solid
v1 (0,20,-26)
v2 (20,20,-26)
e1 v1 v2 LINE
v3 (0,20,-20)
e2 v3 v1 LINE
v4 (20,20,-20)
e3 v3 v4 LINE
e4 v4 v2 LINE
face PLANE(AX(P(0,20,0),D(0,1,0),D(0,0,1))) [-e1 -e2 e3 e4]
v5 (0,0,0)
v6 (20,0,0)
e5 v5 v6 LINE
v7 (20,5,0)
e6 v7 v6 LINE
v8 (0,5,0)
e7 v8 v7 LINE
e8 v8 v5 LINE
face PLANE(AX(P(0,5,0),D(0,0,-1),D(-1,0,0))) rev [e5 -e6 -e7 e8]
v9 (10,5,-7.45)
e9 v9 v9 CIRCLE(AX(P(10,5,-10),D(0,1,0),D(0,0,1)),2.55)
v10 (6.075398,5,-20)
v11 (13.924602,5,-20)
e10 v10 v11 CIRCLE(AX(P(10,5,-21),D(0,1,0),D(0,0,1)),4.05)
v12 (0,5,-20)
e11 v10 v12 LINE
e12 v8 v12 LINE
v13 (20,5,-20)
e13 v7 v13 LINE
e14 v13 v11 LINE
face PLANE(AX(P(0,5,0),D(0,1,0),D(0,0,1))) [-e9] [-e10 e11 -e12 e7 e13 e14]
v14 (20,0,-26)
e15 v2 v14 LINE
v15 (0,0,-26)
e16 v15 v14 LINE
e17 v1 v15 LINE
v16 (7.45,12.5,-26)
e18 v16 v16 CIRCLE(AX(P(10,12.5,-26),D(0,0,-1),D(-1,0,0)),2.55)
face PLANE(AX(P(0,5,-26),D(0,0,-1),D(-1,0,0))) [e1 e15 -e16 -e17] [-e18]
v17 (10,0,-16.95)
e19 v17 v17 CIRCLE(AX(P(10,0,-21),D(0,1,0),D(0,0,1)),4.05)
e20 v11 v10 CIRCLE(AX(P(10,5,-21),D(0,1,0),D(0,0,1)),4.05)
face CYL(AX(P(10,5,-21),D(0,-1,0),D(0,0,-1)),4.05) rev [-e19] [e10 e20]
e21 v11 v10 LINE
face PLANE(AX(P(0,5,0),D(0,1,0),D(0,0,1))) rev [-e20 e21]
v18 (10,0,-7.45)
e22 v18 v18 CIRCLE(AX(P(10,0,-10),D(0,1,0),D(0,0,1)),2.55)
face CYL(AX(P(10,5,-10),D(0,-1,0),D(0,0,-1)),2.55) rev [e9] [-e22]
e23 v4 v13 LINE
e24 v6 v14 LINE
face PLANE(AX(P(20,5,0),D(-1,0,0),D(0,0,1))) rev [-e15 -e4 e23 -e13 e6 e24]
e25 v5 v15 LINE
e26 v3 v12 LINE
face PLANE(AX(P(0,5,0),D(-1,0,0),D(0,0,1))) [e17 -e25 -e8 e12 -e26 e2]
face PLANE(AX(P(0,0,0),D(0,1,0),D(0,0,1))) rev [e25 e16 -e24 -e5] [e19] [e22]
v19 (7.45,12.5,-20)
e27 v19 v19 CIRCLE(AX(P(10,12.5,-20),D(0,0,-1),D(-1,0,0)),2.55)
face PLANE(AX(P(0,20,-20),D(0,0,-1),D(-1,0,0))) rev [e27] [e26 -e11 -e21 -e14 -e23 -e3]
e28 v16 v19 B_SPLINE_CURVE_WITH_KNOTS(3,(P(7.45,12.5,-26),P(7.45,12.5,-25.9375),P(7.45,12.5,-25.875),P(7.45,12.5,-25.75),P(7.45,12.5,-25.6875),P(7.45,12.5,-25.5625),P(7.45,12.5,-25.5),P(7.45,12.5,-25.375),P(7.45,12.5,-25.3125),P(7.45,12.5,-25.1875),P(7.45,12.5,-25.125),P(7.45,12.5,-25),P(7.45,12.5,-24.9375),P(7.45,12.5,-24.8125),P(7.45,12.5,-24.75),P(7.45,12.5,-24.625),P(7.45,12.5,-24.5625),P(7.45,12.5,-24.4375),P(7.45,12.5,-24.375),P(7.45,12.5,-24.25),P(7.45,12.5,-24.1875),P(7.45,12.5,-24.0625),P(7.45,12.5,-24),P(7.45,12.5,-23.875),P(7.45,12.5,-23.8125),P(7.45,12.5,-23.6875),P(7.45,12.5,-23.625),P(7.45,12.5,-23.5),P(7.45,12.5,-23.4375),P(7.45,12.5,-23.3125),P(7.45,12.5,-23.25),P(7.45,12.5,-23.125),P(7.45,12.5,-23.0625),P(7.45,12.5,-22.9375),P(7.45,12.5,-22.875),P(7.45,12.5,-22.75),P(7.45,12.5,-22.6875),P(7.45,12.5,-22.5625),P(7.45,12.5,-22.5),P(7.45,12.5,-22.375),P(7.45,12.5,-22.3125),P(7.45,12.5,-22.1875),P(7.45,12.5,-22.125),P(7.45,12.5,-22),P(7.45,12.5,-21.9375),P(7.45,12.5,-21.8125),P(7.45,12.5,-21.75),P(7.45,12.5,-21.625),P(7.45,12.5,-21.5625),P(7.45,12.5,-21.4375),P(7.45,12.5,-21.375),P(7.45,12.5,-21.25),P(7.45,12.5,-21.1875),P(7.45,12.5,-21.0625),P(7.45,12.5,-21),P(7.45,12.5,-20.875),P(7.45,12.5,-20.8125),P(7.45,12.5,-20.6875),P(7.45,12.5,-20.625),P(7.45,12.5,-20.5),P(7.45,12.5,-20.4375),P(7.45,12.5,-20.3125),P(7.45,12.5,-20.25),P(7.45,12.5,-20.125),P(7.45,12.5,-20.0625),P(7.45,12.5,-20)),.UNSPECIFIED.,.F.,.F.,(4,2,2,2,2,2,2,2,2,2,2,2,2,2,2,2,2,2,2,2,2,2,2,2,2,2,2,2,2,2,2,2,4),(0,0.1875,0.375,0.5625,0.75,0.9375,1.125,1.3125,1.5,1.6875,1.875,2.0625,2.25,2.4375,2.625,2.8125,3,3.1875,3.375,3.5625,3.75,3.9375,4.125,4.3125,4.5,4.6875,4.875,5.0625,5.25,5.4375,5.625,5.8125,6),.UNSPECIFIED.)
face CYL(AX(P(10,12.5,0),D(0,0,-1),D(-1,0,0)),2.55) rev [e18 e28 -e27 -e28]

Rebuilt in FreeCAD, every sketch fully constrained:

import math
import FreeCAD as App
import Part
import Sketcher
from FreeCAD import Vector


def add_polygon(sketch, points):
    """Adds a closed chain of lines whose ends are joined by coincident constraints."""
    first, n = sketch.GeometryCount, len(points)
    for a, b in zip(points, points[1:] + points[:1]):
        sketch.addGeometry(Part.LineSegment(App.Vector(*a, 0), App.Vector(*b, 0)), False)
    for i in range(n):
        sketch.addConstraint(Sketcher.Constraint("Coincident", first + i, 2, first + (i + 1) % n, 1))

doc = App.newDocument("Part")
body = doc.addObject("PartDesign::Body", "Body")

# Sketch on XZ plane
sketch1 = body.newObject("Sketcher::SketchObject", "Sketch")
sketch1.AttachmentSupport = (doc.getObject("XZ_Plane"), [""])
sketch1.MapMode = "FlatFace"
add_polygon(sketch1, [(0, 0), (20, 0), (20, -26), (0, -26)])  # lines 0-3
sketch1.addGeometry(Part.ArcOfCircle(Part.Circle(Vector(10, -21, 0), Vector(0, 0, 1), 4), math.radians(14), math.radians(166)), False)  # 4
sketch1.addGeometry(Part.ArcOfCircle(Part.Circle(Vector(10, -21, 0), Vector(0, 0, 1), 4), math.radians(166), math.radians(360)), False)  # 5
sketch1.addGeometry(Part.ArcOfCircle(Part.Circle(Vector(10, -21, 0), Vector(0, 0, 1), 4), math.radians(0), math.radians(14.29)), False)  # 6
sketch1.addGeometry(Part.Circle(Vector(10, -10, 0), Vector(0, 0, 1), 2.5), False)  # 7
sketch1.addConstraint(Sketcher.Constraint("Tangent", 4, 2, 5, 1))
sketch1.addConstraint(Sketcher.Constraint("Tangent", 5, 2, 6, 1))
sketch1.addConstraint(Sketcher.Constraint("Tangent", 6, 2, 4, 1))
sketch1.addConstraint(Sketcher.Constraint("Horizontal", 0))
sketch1.addConstraint(Sketcher.Constraint("Vertical", 1))
sketch1.addConstraint(Sketcher.Constraint("Horizontal", 2))
sketch1.addConstraint(Sketcher.Constraint("Vertical", 3))
sketch1.addConstraint(Sketcher.Constraint("Coincident", 3, 2, -1, 1))
sketch1.addConstraint(Sketcher.Constraint("Horizontal", 6, 3, 5, 2))
sketch1.addConstraint(Sketcher.Constraint("Horizontal", 4, 2, 6, 2))
sketch1.addConstraint(Sketcher.Constraint("Vertical", 6, 3, 7, 3))
sketch1.addConstraint(Sketcher.Constraint("Diameter", 7, 5.1))
sketch1.addConstraint(Sketcher.Constraint("DistanceX", 0, 1, 0, 2, 20.0))
sketch1.addConstraint(Sketcher.Constraint("DistanceY", 1, 2, 1, 1, 26.0))
sketch1.addConstraint(Sketcher.Constraint("Radius", 4, 4.05))
sketch1.addConstraint(Sketcher.Constraint("DistanceX", -1, 1, 4, 3, 10.0))
sketch1.addConstraint(Sketcher.Constraint("DistanceY", 4, 3, -1, 1, 21.0))
sketch1.addConstraint(Sketcher.Constraint("DistanceY", 7, 3, -1, 1, 10.0))
sketch1.addConstraint(Sketcher.Constraint("DistanceY", 4, 2, -1, 1, 20.0))
pad1 = body.newObject("PartDesign::Pad", "Pad")
pad1.Profile = sketch1
pad1.Length = 5
pad1.Reversed = True

# Sketch on XZ plane
sketch2 = body.newObject("Sketcher::SketchObject", "Sketch001")
sketch2.AttachmentSupport = (doc.getObject("XZ_Plane"), [""])
sketch2.MapMode = "FlatFace"
sketch2.addGeometry(Part.LineSegment(Vector(0, -26, 0), Vector(0, -20, 0)), False)
sketch2.addGeometry(Part.LineSegment(Vector(0, -20, 0), Vector(6.1, -20, 0)), False)
sketch2.addGeometry(Part.ArcOfCircle(Part.Circle(Vector(10, -21, 0), Vector(0, 0, 1), 4), math.radians(166), math.radians(360)), False)
sketch2.addGeometry(Part.ArcOfCircle(Part.Circle(Vector(10, -21, 0), Vector(0, 0, 1), 4), math.radians(0), math.radians(14.29)), False)
sketch2.addGeometry(Part.LineSegment(Vector(13.9, -20, 0), Vector(20, -20, 0)), False)
sketch2.addGeometry(Part.LineSegment(Vector(20, -20, 0), Vector(20, -26, 0)), False)
sketch2.addGeometry(Part.LineSegment(Vector(20, -26, 0), Vector(0, -26, 0)), False)
sketch2.addConstraint(Sketcher.Constraint("Coincident", 0, 2, 1, 1))
sketch2.addConstraint(Sketcher.Constraint("Coincident", 1, 2, 2, 1))
sketch2.addConstraint(Sketcher.Constraint("Tangent", 2, 2, 3, 1))
sketch2.addConstraint(Sketcher.Constraint("Coincident", 3, 2, 4, 1))
sketch2.addConstraint(Sketcher.Constraint("Coincident", 4, 2, 5, 1))
sketch2.addConstraint(Sketcher.Constraint("Coincident", 5, 2, 6, 1))
sketch2.addConstraint(Sketcher.Constraint("Coincident", 6, 2, 0, 1))
sketch2.addConstraint(Sketcher.Constraint("Vertical", 0))
sketch2.addConstraint(Sketcher.Constraint("Horizontal", 1))
sketch2.addConstraint(Sketcher.Constraint("Horizontal", 4))
sketch2.addConstraint(Sketcher.Constraint("Vertical", 5))
sketch2.addConstraint(Sketcher.Constraint("Horizontal", 6))
sketch2.addConstraint(Sketcher.Constraint("Equal", 2, 3))
sketch2.addConstraint(Sketcher.Constraint("PointOnObject", 0, 2, -2))
sketch2.addConstraint(Sketcher.Constraint("Horizontal", 3, 3, 2, 2))
sketch2.addConstraint(Sketcher.Constraint("Horizontal", 1, 2, 3, 2))
sketch2.addConstraint(Sketcher.Constraint("Equal", 1, 4))
sketch2.addConstraint(Sketcher.Constraint("DistanceX", 6, 2, 6, 1, 20.0))
sketch2.addConstraint(Sketcher.Constraint("DistanceY", 0, 1, 0, 2, 6.0))
sketch2.addConstraint(Sketcher.Constraint("Radius", 2, 4.05))
sketch2.addConstraint(Sketcher.Constraint("DistanceY", 2, 3, -1, 1, 21.0))
sketch2.addConstraint(Sketcher.Constraint("DistanceY", 0, 2, -1, 1, 20.0))
pad2 = body.newObject("PartDesign::Pad", "Pad001")
pad2.Profile = sketch2
pad2.Length = 20
pad2.Reversed = True

# Sketch on XZ plane
sketch3 = body.newObject("Sketcher::SketchObject", "Sketch002")
sketch3.AttachmentSupport = (doc.getObject("XZ_Plane"), [""])
sketch3.MapMode = "FlatFace"
sketch3.AttachmentOffset = App.Placement(Vector(0, 0, -5), App.Rotation())
sketch3.addGeometry(Part.LineSegment(Vector(6.1, -20, 0), Vector(13.9, -20, 0)), False)
sketch3.addGeometry(Part.ArcOfCircle(Part.Circle(Vector(10, -21, 0), Vector(0, 0, 1), 4), math.radians(166), math.radians(374)), False)
sketch3.addConstraint(Sketcher.Constraint("Coincident", 0, 1, 1, 1))
sketch3.addConstraint(Sketcher.Constraint("Coincident", 1, 2, 0, 2))
sketch3.addConstraint(Sketcher.Constraint("Horizontal", 0))
sketch3.addConstraint(Sketcher.Constraint("Radius", 1, 4.05))
sketch3.addConstraint(Sketcher.Constraint("DistanceX", -1, 1, 1, 3, 10.0))
sketch3.addConstraint(Sketcher.Constraint("DistanceY", 1, 3, -1, 1, 21.0))
sketch3.addConstraint(Sketcher.Constraint("DistanceY", 0, 1, -1, 1, 20.0))
pad3 = body.newObject("PartDesign::Pad", "Pad002")
pad3.Profile = sketch3
pad3.Length = 15
pad3.Reversed = True

# Sketch on XY plane
sketch4 = body.newObject("Sketcher::SketchObject", "Sketch003")
sketch4.AttachmentSupport = (doc.getObject("XY_Plane"), [""])
sketch4.MapMode = "FlatFace"
sketch4.AttachmentOffset = App.Placement(Vector(0, 0, -26), App.Rotation())
sketch4.addGeometry(Part.Circle(Vector(10, 12.5, 0), Vector(0, 0, 1), 2.5), False)
sketch4.addConstraint(Sketcher.Constraint("Diameter", 0, 5.1))
sketch4.addConstraint(Sketcher.Constraint("DistanceX", -1, 1, 0, 3, 10.0))
sketch4.addConstraint(Sketcher.Constraint("DistanceY", -1, 1, 0, 3, 12.5))
pocket1 = body.newObject("PartDesign::Pocket", "Pocket")
pocket1.Profile = sketch4
pocket1.Type = "ThroughAll"
pocket1.Reversed = True

doc.recompute()
